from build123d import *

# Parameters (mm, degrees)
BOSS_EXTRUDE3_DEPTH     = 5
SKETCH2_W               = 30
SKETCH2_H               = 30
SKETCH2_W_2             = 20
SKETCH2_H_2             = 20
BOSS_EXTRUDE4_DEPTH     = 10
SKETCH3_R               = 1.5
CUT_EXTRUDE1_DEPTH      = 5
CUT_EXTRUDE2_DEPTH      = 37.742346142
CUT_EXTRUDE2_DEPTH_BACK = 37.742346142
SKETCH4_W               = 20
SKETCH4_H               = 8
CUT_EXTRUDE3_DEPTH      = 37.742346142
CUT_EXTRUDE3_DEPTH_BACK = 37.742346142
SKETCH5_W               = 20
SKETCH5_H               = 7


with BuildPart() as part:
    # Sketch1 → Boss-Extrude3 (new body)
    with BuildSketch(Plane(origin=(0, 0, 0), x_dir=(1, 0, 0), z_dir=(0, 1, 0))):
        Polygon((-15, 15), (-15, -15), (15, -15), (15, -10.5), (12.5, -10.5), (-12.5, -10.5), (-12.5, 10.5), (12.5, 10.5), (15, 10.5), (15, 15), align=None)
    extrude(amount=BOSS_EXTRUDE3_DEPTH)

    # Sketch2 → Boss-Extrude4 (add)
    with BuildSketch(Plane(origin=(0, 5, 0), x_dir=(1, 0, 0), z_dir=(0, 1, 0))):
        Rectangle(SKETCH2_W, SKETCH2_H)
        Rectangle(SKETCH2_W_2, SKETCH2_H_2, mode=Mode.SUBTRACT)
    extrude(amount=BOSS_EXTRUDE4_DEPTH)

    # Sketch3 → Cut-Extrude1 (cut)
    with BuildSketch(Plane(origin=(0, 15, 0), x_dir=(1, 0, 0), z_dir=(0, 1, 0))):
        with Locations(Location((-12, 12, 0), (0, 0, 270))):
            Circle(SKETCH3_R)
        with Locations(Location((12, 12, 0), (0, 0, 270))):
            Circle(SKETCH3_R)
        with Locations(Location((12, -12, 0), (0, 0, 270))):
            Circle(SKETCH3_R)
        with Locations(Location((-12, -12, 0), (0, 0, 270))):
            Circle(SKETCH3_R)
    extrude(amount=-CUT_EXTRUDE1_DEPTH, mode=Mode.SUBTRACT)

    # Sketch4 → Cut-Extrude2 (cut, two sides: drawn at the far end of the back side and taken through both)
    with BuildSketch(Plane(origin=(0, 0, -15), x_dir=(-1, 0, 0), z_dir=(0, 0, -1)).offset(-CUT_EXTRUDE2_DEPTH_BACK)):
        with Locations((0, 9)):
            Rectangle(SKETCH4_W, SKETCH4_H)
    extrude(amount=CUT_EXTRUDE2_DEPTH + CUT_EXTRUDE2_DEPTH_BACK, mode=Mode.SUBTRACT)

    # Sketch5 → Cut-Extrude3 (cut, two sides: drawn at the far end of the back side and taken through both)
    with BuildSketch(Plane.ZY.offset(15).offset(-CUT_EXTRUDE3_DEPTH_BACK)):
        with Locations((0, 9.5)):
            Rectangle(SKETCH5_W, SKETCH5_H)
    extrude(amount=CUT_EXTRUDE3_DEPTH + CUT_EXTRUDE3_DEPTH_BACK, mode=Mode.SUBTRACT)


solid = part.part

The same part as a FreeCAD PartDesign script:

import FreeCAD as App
import Part
import Sketcher
from FreeCAD import Vector

doc = App.newDocument("Part")
body = doc.addObject("PartDesign::Body", "Body")

sketch1 = body.newObject("Sketcher::SketchObject", "Sketch")
sketch1.AttachmentSupport = (doc.getObject("XZ_Plane"), [""])
sketch1.MapMode = "FlatFace"
sketch1.addGeometry([
    Part.LineSegment(Vector(-15, -15, 0), Vector(-15, 15, 0)),
    Part.LineSegment(Vector(-15, 15, 0), Vector(15, 15, 0)),
    Part.LineSegment(Vector(15, 15, 0), Vector(15, 10.5, 0)),
    Part.LineSegment(Vector(15, 10.5, 0), Vector(-12.5, 10.5, 0)),
    Part.LineSegment(Vector(-12.5, 10.5, 0), Vector(-12.5, -10.5, 0)),
    Part.LineSegment(Vector(-12.5, -10.5, 0), Vector(15, -10.5, 0)),
    Part.LineSegment(Vector(15, -10.5, 0), Vector(15, -15, 0)),
    Part.LineSegment(Vector(15, -15, 0), Vector(-15, -15, 0)),
], False)
sketch1.addConstraint([
    Sketcher.Constraint("Coincident", 0, 2, 1, 1),
    Sketcher.Constraint("Coincident", 1, 2, 2, 1),
    Sketcher.Constraint("Coincident", 2, 2, 3, 1),
    Sketcher.Constraint("Coincident", 3, 2, 4, 1),
    Sketcher.Constraint("Coincident", 4, 2, 5, 1),
    Sketcher.Constraint("Coincident", 5, 2, 6, 1),
    Sketcher.Constraint("Coincident", 6, 2, 7, 1),
    Sketcher.Constraint("Coincident", 7, 2, 0, 1),
    Sketcher.Constraint("Vertical", 0),
    Sketcher.Constraint("Horizontal", 1),
    Sketcher.Constraint("Vertical", 2),
    Sketcher.Constraint("Horizontal", 3),
    Sketcher.Constraint("Vertical", 4),
    Sketcher.Constraint("Horizontal", 5),
    Sketcher.Constraint("Vertical", 6),
    Sketcher.Constraint("Horizontal", 7),
    Sketcher.Constraint("Symmetric", 0, 2, 6, 2, -1, 1),
    Sketcher.Constraint("Symmetric", 2, 2, 5, 2, -1),
    Sketcher.Constraint("Equal", 7, 0),
    Sketcher.Constraint("DistanceX", 1, 1, 1, 2, 30.0),
    Sketcher.Constraint("DistanceY", 4, 2, 4, 1, 21.0),
    Sketcher.Constraint("DistanceX", 3, 2, 3, 1, 27.5),
])
pad1 = body.newObject("PartDesign::Pad", "Pad")
pad1.Profile = sketch1
pad1.Length = 5
pad1.Reversed = True

sketch2 = body.newObject("Sketcher::SketchObject", "Sketch001")
sketch2.AttachmentSupport = (doc.getObject("XZ_Plane"), [""])
sketch2.MapMode = "FlatFace"
sketch2.AttachmentOffset = App.Placement(Vector(0, 0, -5), App.Rotation())
sketch2.addGeometry([
    Part.LineSegment(Vector(-15, -15, 0), Vector(-15, 15, 0)),
    Part.LineSegment(Vector(-15, 15, 0), Vector(15, 15, 0)),
    Part.LineSegment(Vector(15, 15, 0), Vector(15, -15, 0)),
    Part.LineSegment(Vector(15, -15, 0), Vector(-15, -15, 0)),
    Part.LineSegment(Vector(10, 10, 0), Vector(-10, 10, 0)),
    Part.LineSegment(Vector(-10, 10, 0), Vector(-10, -10, 0)),
    Part.LineSegment(Vector(-10, -10, 0), Vector(10, -10, 0)),
    Part.LineSegment(Vector(10, -10, 0), Vector(10, 10, 0)),
], False)
sketch2.addConstraint([
    Sketcher.Constraint("Coincident", 0, 2, 1, 1),
    Sketcher.Constraint("Coincident", 1, 2, 2, 1),
    Sketcher.Constraint("Coincident", 2, 2, 3, 1),
    Sketcher.Constraint("Coincident", 3, 2, 0, 1),
    Sketcher.Constraint("Coincident", 4, 2, 5, 1),
    Sketcher.Constraint("Coincident", 5, 2, 6, 1),
    Sketcher.Constraint("Coincident", 6, 2, 7, 1),
    Sketcher.Constraint("Coincident", 7, 2, 4, 1),
    Sketcher.Constraint("Vertical", 0),
    Sketcher.Constraint("Horizontal", 1),
    Sketcher.Constraint("Vertical", 2),
    Sketcher.Constraint("Horizontal", 3),
    Sketcher.Constraint("Horizontal", 4),
    Sketcher.Constraint("Vertical", 5),
    Sketcher.Constraint("Horizontal", 6),
    Sketcher.Constraint("Vertical", 7),
    Sketcher.Constraint("Symmetric", 0, 2, 2, 2, -1, 1),
    Sketcher.Constraint("Symmetric", 4, 2, 6, 2, -1, 1),
    Sketcher.Constraint("Equal", 3, 0),
    Sketcher.Constraint("Equal", 6, 5),
    Sketcher.Constraint("DistanceX", 1, 1, 1, 2, 30.0),
    Sketcher.Constraint("DistanceX", 4, 2, 4, 1, 20.0),
])
pad2 = body.newObject("PartDesign::Pad", "Pad001")
pad2.Profile = sketch2
pad2.Length = 10
pad2.Reversed = True

sketch3 = body.newObject("Sketcher::SketchObject", "Sketch002")
sketch3.AttachmentSupport = (doc.getObject("XZ_Plane"), [""])
sketch3.MapMode = "FlatFace"
sketch3.AttachmentOffset = App.Placement(Vector(0, 0, -15), App.Rotation())
sketch3.addGeometry([
    Part.Circle(Vector(-12, -12, 0), Vector(0, 0, 1), 1.5),
    Part.Circle(Vector(12, -12, 0), Vector(0, 0, 1), 1.5),
    Part.Circle(Vector(12, 12, 0), Vector(0, 0, 1), 1.5),
    Part.Circle(Vector(-12, 12, 0), Vector(0, 0, 1), 1.5),
], False)
sketch3.addConstraint([
    Sketcher.Constraint("Equal", 0, 1),
    Sketcher.Constraint("Equal", 1, 2),
    Sketcher.Constraint("Equal", 2, 3),
    Sketcher.Constraint("Symmetric", 0, 3, 2, 3, -1, 1),
    Sketcher.Constraint("Symmetric", 1, 3, 3, 3, -1, 1),
    Sketcher.Constraint("Symmetric", 0, 3, 1, 3, -2),
    Sketcher.Constraint("Diameter", 0, 3.0),
    Sketcher.Constraint("DistanceX", 0, 3, -1, 1, 12.0),
    Sketcher.Constraint("DistanceY", 0, 3, -1, 1, 12.0),
])
pocket1 = body.newObject("PartDesign::Pocket", "Pocket")
pocket1.Profile = sketch3
pocket1.Length = 5
pocket1.Reversed = True

sketch4 = body.newObject("Sketcher::SketchObject", "Sketch003")
sketch4.AttachmentSupport = (doc.getObject("XY_Plane"), [""])
sketch4.MapMode = "FlatFace"
sketch4.AttachmentOffset = App.Placement(Vector(0, 0, -15), App.Rotation())
sketch4.addGeometry([
    Part.LineSegment(Vector(10, 13, 0), Vector(10, 5, 0)),
    Part.LineSegment(Vector(10, 5, 0), Vector(-10, 5, 0)),
    Part.LineSegment(Vector(-10, 5, 0), Vector(-10, 13, 0)),
    Part.LineSegment(Vector(-10, 13, 0), Vector(10, 13, 0)),
], False)
sketch4.addConstraint([
    Sketcher.Constraint("Coincident", 0, 2, 1, 1),
    Sketcher.Constraint("Coincident", 1, 2, 2, 1),
    Sketcher.Constraint("Coincident", 2, 2, 3, 1),
    Sketcher.Constraint("Coincident", 3, 2, 0, 1),
    Sketcher.Constraint("Vertical", 0),
    Sketcher.Constraint("Horizontal", 1),
    Sketcher.Constraint("Vertical", 2),
    Sketcher.Constraint("Horizontal", 3),
    Sketcher.Constraint("DistanceX", 1, 2, 1, 1, 20.0),
    Sketcher.Constraint("DistanceY", 0, 2, 0, 1, 8.0),
    Sketcher.Constraint("DistanceX", -1, 1, 0, 2, 10.0),
    Sketcher.Constraint("DistanceY", -1, 1, 0, 2, 5.0),
])
pocket2 = body.newObject("PartDesign::Pocket", "Pocket001")
pocket2.Profile = sketch4
pocket2.Type = "ThroughAll"
pocket2.Midplane = True

sketch5 = body.newObject("Sketcher::SketchObject", "Sketch004")
sketch5.AttachmentSupport = (doc.getObject("YZ_Plane"), [""])
sketch5.MapMode = "FlatFace"
sketch5.AttachmentOffset = App.Placement(Vector(0, 0, -15), App.Rotation())
sketch5.addGeometry([
    Part.LineSegment(Vector(13, -10, 0), Vector(6, -10, 0)),
    Part.LineSegment(Vector(6, -10, 0), Vector(6, 10, 0)),
    Part.LineSegment(Vector(6, 10, 0), Vector(13, 10, 0)),
    Part.LineSegment(Vector(13, 10, 0), Vector(13, -10, 0)),
], False)
sketch5.addConstraint([
    Sketcher.Constraint("Coincident", 0, 2, 1, 1),
    Sketcher.Constraint("Coincident", 1, 2, 2, 1),
    Sketcher.Constraint("Coincident", 2, 2, 3, 1),
    Sketcher.Constraint("Coincident", 3, 2, 0, 1),
    Sketcher.Constraint("Horizontal", 0),
    Sketcher.Constraint("Vertical", 1),
    Sketcher.Constraint("Horizontal", 2),
    Sketcher.Constraint("Vertical", 3),
    Sketcher.Constraint("DistanceX", 0, 2, 0, 1, 7.0),
    Sketcher.Constraint("DistanceY", 1, 1, 1, 2, 20.0),
    Sketcher.Constraint("DistanceX", -1, 1, 0, 2, 6.0),
    Sketcher.Constraint("DistanceY", 0, 2, -1, 1, 10.0),
])
pocket3 = body.newObject("PartDesign::Pocket", "Pocket002")
pocket3.Profile = sketch5
pocket3.Type = "ThroughAll"
pocket3.Midplane = True

doc.recompute()
